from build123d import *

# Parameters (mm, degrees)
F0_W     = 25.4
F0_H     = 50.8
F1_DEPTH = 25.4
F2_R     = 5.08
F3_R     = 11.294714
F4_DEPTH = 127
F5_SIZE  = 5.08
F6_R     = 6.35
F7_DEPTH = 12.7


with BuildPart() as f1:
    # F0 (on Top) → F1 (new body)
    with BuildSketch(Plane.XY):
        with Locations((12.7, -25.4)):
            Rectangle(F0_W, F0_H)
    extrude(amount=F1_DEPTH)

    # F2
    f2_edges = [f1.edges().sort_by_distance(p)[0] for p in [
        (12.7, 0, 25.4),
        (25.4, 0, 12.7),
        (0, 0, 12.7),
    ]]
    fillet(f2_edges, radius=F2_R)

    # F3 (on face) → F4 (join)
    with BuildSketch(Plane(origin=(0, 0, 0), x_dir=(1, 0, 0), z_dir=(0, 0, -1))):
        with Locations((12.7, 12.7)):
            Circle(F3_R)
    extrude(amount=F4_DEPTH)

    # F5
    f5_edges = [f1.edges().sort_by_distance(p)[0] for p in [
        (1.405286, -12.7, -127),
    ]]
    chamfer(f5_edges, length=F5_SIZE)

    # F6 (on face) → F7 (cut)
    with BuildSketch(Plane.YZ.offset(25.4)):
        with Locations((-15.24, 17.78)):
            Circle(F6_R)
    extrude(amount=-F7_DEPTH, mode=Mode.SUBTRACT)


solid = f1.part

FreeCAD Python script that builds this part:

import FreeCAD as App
import Part
import Sketcher

V = App.Vector
Q = App.Units.Quantity


def edges_at(feature, points):
    """Names of the edges that pass closest to the given points."""
    edges = feature.Shape.Edges
    near = lambda p: min(range(len(edges)), key=lambda i: edges[i].distToShape(Part.Vertex(*p))[0])
    return sorted({f"Edge{near(p) + 1}" for p in points})


def add_polygon(sketch, points):
    """Adds a closed chain of lines whose ends are joined by coincident constraints."""
    first, n = sketch.GeometryCount, len(points)
    for a, b in zip(points, points[1:] + points[:1]):
        sketch.addGeometry(Part.LineSegment(App.Vector(*a, 0), App.Vector(*b, 0)), False)
    for i in range(n):
        sketch.addConstraint(Sketcher.Constraint("Coincident", first + i, 2, first + (i + 1) % n, 1))

doc = App.newDocument("Part")
body = doc.addObject("PartDesign::Body", "Body")

# Sketch on XY plane
sketch1 = body.newObject("Sketcher::SketchObject", "Sketch")
sketch1.AttachmentSupport = (doc.getObject("XY_Plane"), [""])
sketch1.MapMode = "FlatFace"
add_polygon(sketch1, [(0, 0), (0, -51), (25, -51), (25, 0)])  # lines 0-3
sketch1.addConstraint([
    Sketcher.Constraint("Vertical", 0),
    Sketcher.Constraint("Horizontal", 1),
    Sketcher.Constraint("Vertical", 2),
    Sketcher.Constraint("Horizontal", 3),
    Sketcher.Constraint("Coincident", 3, 2, -1, 1),
    Sketcher.Constraint("DistanceX", 1, 1, 1, 2, Q("1 in")),
    Sketcher.Constraint("DistanceY", 0, 2, 0, 1, Q("2 in")),
])
pad1 = body.newObject("PartDesign::Pad", "Pad")
pad1.Profile = sketch1
pad1.Length = Q("1 in")
doc.recompute()

fillet = body.newObject("PartDesign::Fillet", "Fillet")
fillet.Base = (pad1, edges_at(pad1, [(12.7, 0, 25.4), (25.4, 0, 12.7), (0, 0, 12.7)]))
fillet.Radius = Q("0.2 in")

# Sketch on XY plane
sketch2 = body.newObject("Sketcher::SketchObject", "Sketch001")
sketch2.AttachmentSupport = (doc.getObject("XY_Plane"), [""])
sketch2.MapMode = "FlatFace"
sketch2.addGeometry(Part.Circle(V(13, -13, 0), V(0, 0, 1), 11), False)
sketch2.addConstraint([
    Sketcher.Constraint("DistanceX", -1, 1, 0, 3, Q("0.5 in")),
    Sketcher.Constraint("DistanceY", 0, 3, -1, 1, Q("0.5 in")),
    Sketcher.Constraint("Diameter", 0, Q("22.589428 mm")),
])
pad2 = body.newObject("PartDesign::Pad", "Pad001")
pad2.Profile = sketch2
pad2.Length = Q("5 in")
pad2.Reversed = True
doc.recompute()

chamfer = body.newObject("PartDesign::Chamfer", "Chamfer")
chamfer.Base = (pad2, edges_at(pad2, [(1.405, -12.7, -127)]))
chamfer.Size = Q("0.2 in")

# Sketch on YZ plane
sketch3 = body.newObject("Sketcher::SketchObject", "Sketch002")
sketch3.AttachmentSupport = (doc.getObject("YZ_Plane"), [""])
sketch3.MapMode = "FlatFace"
sketch3.AttachmentOffset = App.Placement(V(0, 0, 1 * 25.4), App.Rotation())
sketch3.addGeometry(Part.Circle(V(-15, 18, 0), V(0, 0, 1), 6), False)
sketch3.addConstraint([
    Sketcher.Constraint("Diameter", 0, Q("0.5 in")),
    Sketcher.Constraint("DistanceX", 0, 3, -1, 1, Q("0.6 in")),
    Sketcher.Constraint("DistanceY", -1, 1, 0, 3, Q("0.7 in")),
])
pocket1 = body.newObject("PartDesign::Pocket", "Pocket")
pocket1.Profile = sketch3
pocket1.Length = Q("0.5 in")

doc.recompute()
